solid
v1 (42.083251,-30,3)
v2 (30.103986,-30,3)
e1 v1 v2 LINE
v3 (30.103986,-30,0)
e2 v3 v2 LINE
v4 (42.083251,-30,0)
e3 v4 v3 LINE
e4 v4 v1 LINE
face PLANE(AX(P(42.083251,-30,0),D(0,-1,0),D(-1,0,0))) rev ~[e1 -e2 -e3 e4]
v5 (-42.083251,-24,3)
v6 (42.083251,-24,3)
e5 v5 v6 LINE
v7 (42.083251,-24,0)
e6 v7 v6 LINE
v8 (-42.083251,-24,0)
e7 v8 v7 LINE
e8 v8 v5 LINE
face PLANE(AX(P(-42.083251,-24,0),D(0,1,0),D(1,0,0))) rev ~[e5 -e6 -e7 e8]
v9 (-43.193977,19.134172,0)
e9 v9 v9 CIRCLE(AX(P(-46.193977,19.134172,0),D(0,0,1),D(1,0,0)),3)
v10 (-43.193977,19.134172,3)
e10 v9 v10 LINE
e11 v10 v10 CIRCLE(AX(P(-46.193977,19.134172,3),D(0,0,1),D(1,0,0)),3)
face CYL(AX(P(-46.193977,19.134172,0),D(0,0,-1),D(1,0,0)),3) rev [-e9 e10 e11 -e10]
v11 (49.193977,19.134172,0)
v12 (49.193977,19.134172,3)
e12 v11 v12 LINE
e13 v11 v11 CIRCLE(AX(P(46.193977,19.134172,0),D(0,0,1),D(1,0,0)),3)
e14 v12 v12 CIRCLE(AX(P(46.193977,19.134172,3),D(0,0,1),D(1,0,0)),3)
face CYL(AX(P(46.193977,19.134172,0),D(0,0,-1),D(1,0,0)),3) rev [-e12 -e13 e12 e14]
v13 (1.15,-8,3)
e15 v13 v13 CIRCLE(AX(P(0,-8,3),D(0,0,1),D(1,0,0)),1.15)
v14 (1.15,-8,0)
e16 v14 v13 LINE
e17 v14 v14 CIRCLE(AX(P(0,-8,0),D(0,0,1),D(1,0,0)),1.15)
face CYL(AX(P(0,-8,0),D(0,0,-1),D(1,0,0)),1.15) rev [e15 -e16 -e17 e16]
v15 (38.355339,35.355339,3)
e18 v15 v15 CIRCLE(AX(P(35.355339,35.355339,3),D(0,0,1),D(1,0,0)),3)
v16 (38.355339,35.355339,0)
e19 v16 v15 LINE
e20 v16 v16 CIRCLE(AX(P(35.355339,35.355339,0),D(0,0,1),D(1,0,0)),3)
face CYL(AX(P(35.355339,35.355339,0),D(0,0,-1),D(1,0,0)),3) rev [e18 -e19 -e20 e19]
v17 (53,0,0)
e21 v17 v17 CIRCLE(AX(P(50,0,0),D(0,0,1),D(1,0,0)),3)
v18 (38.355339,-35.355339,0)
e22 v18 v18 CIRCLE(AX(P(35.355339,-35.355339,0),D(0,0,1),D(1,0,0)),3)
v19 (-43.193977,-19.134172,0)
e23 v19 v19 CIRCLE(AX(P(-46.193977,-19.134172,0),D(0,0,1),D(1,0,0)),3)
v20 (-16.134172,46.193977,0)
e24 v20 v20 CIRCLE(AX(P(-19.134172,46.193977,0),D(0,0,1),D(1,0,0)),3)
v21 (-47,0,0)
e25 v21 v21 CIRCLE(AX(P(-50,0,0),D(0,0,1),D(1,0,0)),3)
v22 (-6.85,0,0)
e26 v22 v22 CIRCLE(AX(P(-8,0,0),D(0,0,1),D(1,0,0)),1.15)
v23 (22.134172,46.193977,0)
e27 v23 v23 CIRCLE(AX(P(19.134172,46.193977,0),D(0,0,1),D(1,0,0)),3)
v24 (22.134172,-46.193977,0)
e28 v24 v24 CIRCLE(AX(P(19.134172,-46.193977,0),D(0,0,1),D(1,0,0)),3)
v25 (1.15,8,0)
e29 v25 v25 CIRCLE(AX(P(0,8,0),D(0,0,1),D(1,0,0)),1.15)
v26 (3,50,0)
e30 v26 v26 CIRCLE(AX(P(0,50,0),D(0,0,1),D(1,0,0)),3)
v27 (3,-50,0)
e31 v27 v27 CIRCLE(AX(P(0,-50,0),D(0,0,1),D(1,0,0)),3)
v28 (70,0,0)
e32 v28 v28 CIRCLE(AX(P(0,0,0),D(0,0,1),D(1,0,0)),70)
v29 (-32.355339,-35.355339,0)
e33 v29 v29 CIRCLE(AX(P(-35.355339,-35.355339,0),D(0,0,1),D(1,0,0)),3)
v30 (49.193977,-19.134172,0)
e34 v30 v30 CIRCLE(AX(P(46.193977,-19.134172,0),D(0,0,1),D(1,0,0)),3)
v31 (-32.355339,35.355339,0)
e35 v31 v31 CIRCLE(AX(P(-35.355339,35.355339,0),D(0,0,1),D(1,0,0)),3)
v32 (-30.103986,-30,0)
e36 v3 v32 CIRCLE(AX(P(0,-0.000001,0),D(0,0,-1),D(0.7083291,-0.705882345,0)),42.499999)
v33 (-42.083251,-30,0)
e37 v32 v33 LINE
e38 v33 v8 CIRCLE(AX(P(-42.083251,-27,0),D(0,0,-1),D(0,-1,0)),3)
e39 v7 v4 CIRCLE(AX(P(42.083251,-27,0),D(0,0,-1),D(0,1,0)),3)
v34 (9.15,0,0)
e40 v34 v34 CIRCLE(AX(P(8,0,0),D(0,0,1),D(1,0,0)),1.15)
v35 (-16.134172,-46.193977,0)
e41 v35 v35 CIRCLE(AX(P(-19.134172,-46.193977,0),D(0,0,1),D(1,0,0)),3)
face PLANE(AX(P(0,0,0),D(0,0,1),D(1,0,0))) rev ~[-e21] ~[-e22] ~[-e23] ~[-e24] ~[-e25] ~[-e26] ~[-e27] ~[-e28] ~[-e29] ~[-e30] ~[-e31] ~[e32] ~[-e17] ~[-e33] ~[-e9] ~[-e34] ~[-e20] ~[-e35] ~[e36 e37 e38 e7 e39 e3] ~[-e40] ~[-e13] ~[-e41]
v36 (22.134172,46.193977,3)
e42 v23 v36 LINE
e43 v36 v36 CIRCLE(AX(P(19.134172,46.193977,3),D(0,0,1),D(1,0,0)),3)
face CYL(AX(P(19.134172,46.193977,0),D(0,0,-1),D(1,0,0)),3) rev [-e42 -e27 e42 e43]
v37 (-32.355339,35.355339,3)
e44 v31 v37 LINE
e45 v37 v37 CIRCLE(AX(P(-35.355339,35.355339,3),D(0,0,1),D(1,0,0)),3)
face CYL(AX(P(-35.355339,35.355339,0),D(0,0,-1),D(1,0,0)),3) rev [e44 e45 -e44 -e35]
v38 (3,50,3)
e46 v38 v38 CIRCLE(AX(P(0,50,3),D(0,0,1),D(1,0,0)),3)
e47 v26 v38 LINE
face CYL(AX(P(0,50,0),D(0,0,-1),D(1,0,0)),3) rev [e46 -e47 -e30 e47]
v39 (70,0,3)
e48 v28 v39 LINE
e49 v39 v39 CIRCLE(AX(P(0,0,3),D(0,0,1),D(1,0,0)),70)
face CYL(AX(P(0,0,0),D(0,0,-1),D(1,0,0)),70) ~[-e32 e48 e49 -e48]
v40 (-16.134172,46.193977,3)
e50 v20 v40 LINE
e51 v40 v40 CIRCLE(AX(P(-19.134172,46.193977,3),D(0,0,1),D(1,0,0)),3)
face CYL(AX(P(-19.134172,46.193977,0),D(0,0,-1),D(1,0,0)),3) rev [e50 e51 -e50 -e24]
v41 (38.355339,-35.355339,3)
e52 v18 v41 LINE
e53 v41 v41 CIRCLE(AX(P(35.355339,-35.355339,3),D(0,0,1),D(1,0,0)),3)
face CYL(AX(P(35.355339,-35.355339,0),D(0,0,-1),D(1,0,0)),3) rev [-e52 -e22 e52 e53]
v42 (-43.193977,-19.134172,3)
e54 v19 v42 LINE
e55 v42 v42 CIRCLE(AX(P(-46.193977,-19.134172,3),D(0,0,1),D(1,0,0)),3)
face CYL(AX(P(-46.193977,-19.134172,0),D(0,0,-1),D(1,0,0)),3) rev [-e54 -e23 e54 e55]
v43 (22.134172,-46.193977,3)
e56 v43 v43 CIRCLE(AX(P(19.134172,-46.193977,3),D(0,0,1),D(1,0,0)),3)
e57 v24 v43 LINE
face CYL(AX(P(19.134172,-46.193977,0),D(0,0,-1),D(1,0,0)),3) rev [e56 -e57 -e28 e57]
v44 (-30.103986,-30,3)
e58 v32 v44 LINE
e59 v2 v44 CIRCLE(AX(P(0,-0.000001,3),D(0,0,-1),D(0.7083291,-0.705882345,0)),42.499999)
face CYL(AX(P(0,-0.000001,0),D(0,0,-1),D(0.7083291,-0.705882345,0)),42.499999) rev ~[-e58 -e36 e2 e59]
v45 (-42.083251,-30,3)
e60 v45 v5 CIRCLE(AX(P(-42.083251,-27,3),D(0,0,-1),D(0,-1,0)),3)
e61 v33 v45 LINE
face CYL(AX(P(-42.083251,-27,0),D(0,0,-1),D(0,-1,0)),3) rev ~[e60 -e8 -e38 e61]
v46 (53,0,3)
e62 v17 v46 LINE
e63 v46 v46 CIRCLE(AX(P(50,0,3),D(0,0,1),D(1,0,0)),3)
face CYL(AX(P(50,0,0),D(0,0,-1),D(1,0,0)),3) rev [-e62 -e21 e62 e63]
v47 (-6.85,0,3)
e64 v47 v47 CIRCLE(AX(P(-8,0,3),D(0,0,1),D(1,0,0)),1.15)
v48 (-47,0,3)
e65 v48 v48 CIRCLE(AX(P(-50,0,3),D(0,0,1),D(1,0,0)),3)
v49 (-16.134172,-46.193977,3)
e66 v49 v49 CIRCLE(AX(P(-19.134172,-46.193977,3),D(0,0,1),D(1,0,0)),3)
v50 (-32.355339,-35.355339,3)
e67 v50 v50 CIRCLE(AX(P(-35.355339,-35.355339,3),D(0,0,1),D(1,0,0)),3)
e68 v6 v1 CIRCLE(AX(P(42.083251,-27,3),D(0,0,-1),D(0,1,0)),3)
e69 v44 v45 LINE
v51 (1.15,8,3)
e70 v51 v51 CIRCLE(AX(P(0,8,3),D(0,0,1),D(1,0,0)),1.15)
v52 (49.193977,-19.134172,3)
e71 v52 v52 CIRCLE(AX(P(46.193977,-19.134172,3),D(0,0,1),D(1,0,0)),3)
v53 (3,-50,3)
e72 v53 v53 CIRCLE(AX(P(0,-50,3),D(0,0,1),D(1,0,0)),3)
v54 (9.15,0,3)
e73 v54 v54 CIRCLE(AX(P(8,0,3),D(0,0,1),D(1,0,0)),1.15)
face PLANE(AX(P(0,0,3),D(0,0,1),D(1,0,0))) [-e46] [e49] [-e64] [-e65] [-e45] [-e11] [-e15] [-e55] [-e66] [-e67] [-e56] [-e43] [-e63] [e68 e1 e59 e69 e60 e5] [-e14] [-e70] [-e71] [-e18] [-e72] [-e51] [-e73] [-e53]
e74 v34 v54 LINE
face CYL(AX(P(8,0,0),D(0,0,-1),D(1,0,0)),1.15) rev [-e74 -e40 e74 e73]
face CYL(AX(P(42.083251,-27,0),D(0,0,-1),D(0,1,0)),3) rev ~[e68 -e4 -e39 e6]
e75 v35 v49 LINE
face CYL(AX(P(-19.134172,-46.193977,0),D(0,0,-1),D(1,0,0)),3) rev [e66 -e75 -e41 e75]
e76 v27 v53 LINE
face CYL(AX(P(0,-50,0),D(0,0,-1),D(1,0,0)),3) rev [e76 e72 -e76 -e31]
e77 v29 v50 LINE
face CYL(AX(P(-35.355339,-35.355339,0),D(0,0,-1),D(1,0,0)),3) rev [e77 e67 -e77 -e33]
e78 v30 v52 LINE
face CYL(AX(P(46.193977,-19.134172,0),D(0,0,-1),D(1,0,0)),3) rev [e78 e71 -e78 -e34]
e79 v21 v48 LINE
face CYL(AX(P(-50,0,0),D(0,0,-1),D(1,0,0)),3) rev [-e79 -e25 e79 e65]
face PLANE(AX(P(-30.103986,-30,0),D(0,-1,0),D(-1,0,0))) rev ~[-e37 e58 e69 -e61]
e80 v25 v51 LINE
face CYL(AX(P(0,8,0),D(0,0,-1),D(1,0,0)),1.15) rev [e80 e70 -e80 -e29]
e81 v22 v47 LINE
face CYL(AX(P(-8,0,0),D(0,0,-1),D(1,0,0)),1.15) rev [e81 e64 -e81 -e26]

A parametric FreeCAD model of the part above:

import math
import FreeCAD as App
import Part
import Sketcher

doc = App.newDocument("Part")
body = doc.addObject("PartDesign::Body", "Body")

sketch1 = doc.addObject("Sketcher::SketchObject", "Sketch")
body.addObject(sketch1)
sketch1.AttachmentSupport = (doc.XY_Plane, [""])
sketch1.MapMode = "FlatFace"
sketch1.addGeometry(Part.Circle(App.Vector(0, 0, 0), App.Vector(0, 0, 1), 70), False)
sketch1.addGeometry(Part.Circle(App.Vector(-35.355339, -35.355339, 0), App.Vector(0, 0, 1), 3), False)
sketch1.addGeometry(Part.Circle(App.Vector(-19.134172, -46.193977, 0), App.Vector(0, 0, 1), 3), False)
sketch1.addGeometry(Part.Circle(App.Vector(-46.193977, -19.134172, 0), App.Vector(0, 0, 1), 3), False)
sketch1.addGeometry(Part.Circle(App.Vector(0, -50, 0), App.Vector(0, 0, 1), 3), False)
sketch1.addGeometry(Part.Circle(App.Vector(19.134172, -46.193977, 0), App.Vector(0, 0, 1), 3), False)
sketch1.addGeometry(Part.LineSegment(App.Vector(42.083251, -30, 0), App.Vector(30.103986, -30, 0)), False)
sketch1.addGeometry(Part.ArcOfCircle(Part.Circle(App.Vector(0, -0.000001, 0), App.Vector(0, 0, 1), 42.499999), math.radians(-135.099128), math.radians(-44.900872)), False)
sketch1.addGeometry(Part.LineSegment(App.Vector(-30.103986, -30, 0), App.Vector(-42.083251, -30, 0)), False)
sketch1.addGeometry(Part.ArcOfCircle(Part.Circle(App.Vector(-42.083251, -27, 0), App.Vector(0, 0, 1), 3), math.radians(90), math.radians(270)), False)
sketch1.addGeometry(Part.LineSegment(App.Vector(-42.083251, -24, 0), App.Vector(42.083251, -24, 0)), False)
sketch1.addGeometry(Part.ArcOfCircle(Part.Circle(App.Vector(42.083251, -27, 0), App.Vector(0, 0, 1), 3), math.radians(-90), math.radians(90)), False)
sketch1.addGeometry(Part.Circle(App.Vector(35.355339, -35.355339, 0), App.Vector(0, 0, 1), 3), False)
sketch1.addGeometry(Part.Circle(App.Vector(0, -8, 0), App.Vector(0, 0, 1), 1.15), False)
sketch1.addGeometry(Part.Circle(App.Vector(46.193977, -19.134172, 0), App.Vector(0, 0, 1), 3), False)
sketch1.addGeometry(Part.Circle(App.Vector(-50, 0, 0), App.Vector(0, 0, 1), 3), False)
sketch1.addGeometry(Part.Circle(App.Vector(-46.193977, 19.134172, 0), App.Vector(0, 0, 1), 3), False)
sketch1.addGeometry(Part.Circle(App.Vector(-8, 0, 0), App.Vector(0, 0, 1), 1.15), False)
sketch1.addGeometry(Part.Circle(App.Vector(-35.355339, 35.355339, 0), App.Vector(0, 0, 1), 3), False)
sketch1.addGeometry(Part.Circle(App.Vector(-19.134172, 46.193977, 0), App.Vector(0, 0, 1), 3), False)
sketch1.addGeometry(Part.Circle(App.Vector(8, 0, 0), App.Vector(0, 0, 1), 1.15), False)
sketch1.addGeometry(Part.Circle(App.Vector(0, 8, 0), App.Vector(0, 0, 1), 1.15), False)
sketch1.addGeometry(Part.Circle(App.Vector(50, 0, 0), App.Vector(0, 0, 1), 3), False)
sketch1.addGeometry(Part.Circle(App.Vector(46.193977, 19.134172, 0), App.Vector(0, 0, 1), 3), False)
sketch1.addGeometry(Part.Circle(App.Vector(0, 50, 0), App.Vector(0, 0, 1), 3), False)
sketch1.addGeometry(Part.Circle(App.Vector(19.134172, 46.193977, 0), App.Vector(0, 0, 1), 3), False)
sketch1.addGeometry(Part.Circle(App.Vector(35.355339, 35.355339, 0), App.Vector(0, 0, 1), 3), False)
sketch1.addConstraint(Sketcher.Constraint("Coincident", 6, 2, 7, 2))
sketch1.addConstraint(Sketcher.Constraint("Coincident", 7, 1, 8, 1))
sketch1.addConstraint(Sketcher.Constraint("Tangent", 8, 2, 9, 2))
sketch1.addConstraint(Sketcher.Constraint("Tangent", 9, 1, 10, 1))
sketch1.addConstraint(Sketcher.Constraint("Tangent", 10, 2, 11, 2))
sketch1.addConstraint(Sketcher.Constraint("Tangent", 11, 1, 6, 1))
sketch1.addConstraint(Sketcher.Constraint("Horizontal", 6))
sketch1.addConstraint(Sketcher.Constraint("Horizontal", 8))
sketch1.addConstraint(Sketcher.Constraint("Horizontal", 10))
sketch1.addConstraint(Sketcher.Constraint("Coincident", 0, 3, -1, 1))
sketch1.addConstraint(Sketcher.Constraint("Coincident", 7, 3, -1, 1))
sketch1.addConstraint(Sketcher.Constraint("Equal", 1, 2))
sketch1.addConstraint(Sketcher.Constraint("Equal", 2, 3))
sketch1.addConstraint(Sketcher.Constraint("Equal", 3, 4))
sketch1.addConstraint(Sketcher.Constraint("Equal", 4, 5))
sketch1.addConstraint(Sketcher.Constraint("Equal", 5, 9))
sketch1.addConstraint(Sketcher.Constraint("Equal", 9, 11))
sketch1.addConstraint(Sketcher.Constraint("Equal", 11, 12))
sketch1.addConstraint(Sketcher.Constraint("Equal", 12, 14))
sketch1.addConstraint(Sketcher.Constraint("Equal", 14, 15))
sketch1.addConstraint(Sketcher.Constraint("Equal", 15, 16))
sketch1.addConstraint(Sketcher.Constraint("Equal", 13, 17))
sketch1.addConstraint(Sketcher.Constraint("Equal", 16, 18))
sketch1.addConstraint(Sketcher.Constraint("Equal", 18, 19))
sketch1.addConstraint(Sketcher.Constraint("Equal", 17, 20))
sketch1.addConstraint(Sketcher.Constraint("Equal", 20, 21))
sketch1.addConstraint(Sketcher.Constraint("Equal", 19, 22))
sketch1.addConstraint(Sketcher.Constraint("Equal", 22, 23))
sketch1.addConstraint(Sketcher.Constraint("Equal", 23, 24))
sketch1.addConstraint(Sketcher.Constraint("Equal", 24, 25))
sketch1.addConstraint(Sketcher.Constraint("Equal", 25, 26))
sketch1.addConstraint(Sketcher.Constraint("Symmetric", 14, 3, 16, 3, -1, 1))
sketch1.addConstraint(Sketcher.Constraint("Symmetric", 12, 3, 18, 3, -1, 1))
sketch1.addConstraint(Sketcher.Constraint("Symmetric", 5, 3, 19, 3, -1, 1))
sketch1.addConstraint(Sketcher.Constraint("Symmetric", 17, 3, 20, 3, -1, 1))
sketch1.addConstraint(Sketcher.Constraint("Symmetric", 13, 3, 21, 3, -1, 1))
sketch1.addConstraint(Sketcher.Constraint("Symmetric", 15, 3, 22, 3, -1, 1))
sketch1.addConstraint(Sketcher.Constraint("Symmetric", 3, 3, 23, 3, -1, 1))
sketch1.addConstraint(Sketcher.Constraint("Symmetric", 4, 3, 24, 3, -1, 1))
sketch1.addConstraint(Sketcher.Constraint("Symmetric", 2, 3, 25, 3, -1, 1))
sketch1.addConstraint(Sketcher.Constraint("Symmetric", 1, 3, 26, 3, -1, 1))
sketch1.addConstraint(Sketcher.Constraint("Symmetric", 2, 3, 5, 3, -2))
sketch1.addConstraint(Sketcher.Constraint("Symmetric", 1, 3, 12, 3, -2))
sketch1.addConstraint(Sketcher.Constraint("Symmetric", 3, 3, 14, 3, -2))
sketch1.addConstraint(Sketcher.Constraint("PointOnObject", 4, 3, -2))
sketch1.addConstraint(Sketcher.Constraint("PointOnObject", 13, 3, -2))
sketch1.addConstraint(Sketcher.Constraint("PointOnObject", 15, 3, -1))
sketch1.addConstraint(Sketcher.Constraint("PointOnObject", 17, 3, -1))
sketch1.addConstraint(Sketcher.Constraint("Equal", 6, 8))
sketch1.addConstraint(Sketcher.Constraint("Diameter", 0, 140.0))
sketch1.addConstraint(Sketcher.Constraint("Diameter", 1, 6.0))
sketch1.addConstraint(Sketcher.Constraint("Diameter", 13, 2.3))
sketch1.addConstraint(Sketcher.Constraint("Radius", 7, 42.499999))
sketch1.addConstraint(Sketcher.Constraint("DistanceY", 4, 3, -1, 1, 50.0))
sketch1.addConstraint(Sketcher.Constraint("DistanceY", 9, 3, -1, 1, 27.0))
sketch1.addConstraint(Sketcher.Constraint("DistanceY", 13, 3, -1, 1, 8.0))
sketch1.addConstraint(Sketcher.Constraint("DistanceX", 15, 3, -1, 1, 50.0))
sketch1.addConstraint(Sketcher.Constraint("DistanceX", 17, 3, -1, 1, 8.0))
sketch1.addConstraint(Sketcher.Constraint("DistanceX", 10, 1, 10, 2, 84.166502))
sketch1.addConstraint(Sketcher.Constraint("DistanceX", 1, 3, -1, 1, 35.355339))
sketch1.addConstraint(Sketcher.Constraint("DistanceY", 1, 3, -1, 1, 35.355339))
sketch1.addConstraint(Sketcher.Constraint("DistanceX", 2, 3, -1, 1, 19.134172))
sketch1.addConstraint(Sketcher.Constraint("DistanceY", 3, 3, -1, 1, 19.134172))
sketch1.addConstraint(Sketcher.Constraint("DistanceX", 3, 3, 5, 3, 65.328149))
sketch1.addConstraint(Sketcher.Constraint("DistanceY", 7, 3, 19, 3, 46.193978))
pad1 = doc.addObject("PartDesign::Pad", "Pad")
body.addObject(pad1)
pad1.Profile = sketch1
pad1.Length = 3

doc.recompute()
